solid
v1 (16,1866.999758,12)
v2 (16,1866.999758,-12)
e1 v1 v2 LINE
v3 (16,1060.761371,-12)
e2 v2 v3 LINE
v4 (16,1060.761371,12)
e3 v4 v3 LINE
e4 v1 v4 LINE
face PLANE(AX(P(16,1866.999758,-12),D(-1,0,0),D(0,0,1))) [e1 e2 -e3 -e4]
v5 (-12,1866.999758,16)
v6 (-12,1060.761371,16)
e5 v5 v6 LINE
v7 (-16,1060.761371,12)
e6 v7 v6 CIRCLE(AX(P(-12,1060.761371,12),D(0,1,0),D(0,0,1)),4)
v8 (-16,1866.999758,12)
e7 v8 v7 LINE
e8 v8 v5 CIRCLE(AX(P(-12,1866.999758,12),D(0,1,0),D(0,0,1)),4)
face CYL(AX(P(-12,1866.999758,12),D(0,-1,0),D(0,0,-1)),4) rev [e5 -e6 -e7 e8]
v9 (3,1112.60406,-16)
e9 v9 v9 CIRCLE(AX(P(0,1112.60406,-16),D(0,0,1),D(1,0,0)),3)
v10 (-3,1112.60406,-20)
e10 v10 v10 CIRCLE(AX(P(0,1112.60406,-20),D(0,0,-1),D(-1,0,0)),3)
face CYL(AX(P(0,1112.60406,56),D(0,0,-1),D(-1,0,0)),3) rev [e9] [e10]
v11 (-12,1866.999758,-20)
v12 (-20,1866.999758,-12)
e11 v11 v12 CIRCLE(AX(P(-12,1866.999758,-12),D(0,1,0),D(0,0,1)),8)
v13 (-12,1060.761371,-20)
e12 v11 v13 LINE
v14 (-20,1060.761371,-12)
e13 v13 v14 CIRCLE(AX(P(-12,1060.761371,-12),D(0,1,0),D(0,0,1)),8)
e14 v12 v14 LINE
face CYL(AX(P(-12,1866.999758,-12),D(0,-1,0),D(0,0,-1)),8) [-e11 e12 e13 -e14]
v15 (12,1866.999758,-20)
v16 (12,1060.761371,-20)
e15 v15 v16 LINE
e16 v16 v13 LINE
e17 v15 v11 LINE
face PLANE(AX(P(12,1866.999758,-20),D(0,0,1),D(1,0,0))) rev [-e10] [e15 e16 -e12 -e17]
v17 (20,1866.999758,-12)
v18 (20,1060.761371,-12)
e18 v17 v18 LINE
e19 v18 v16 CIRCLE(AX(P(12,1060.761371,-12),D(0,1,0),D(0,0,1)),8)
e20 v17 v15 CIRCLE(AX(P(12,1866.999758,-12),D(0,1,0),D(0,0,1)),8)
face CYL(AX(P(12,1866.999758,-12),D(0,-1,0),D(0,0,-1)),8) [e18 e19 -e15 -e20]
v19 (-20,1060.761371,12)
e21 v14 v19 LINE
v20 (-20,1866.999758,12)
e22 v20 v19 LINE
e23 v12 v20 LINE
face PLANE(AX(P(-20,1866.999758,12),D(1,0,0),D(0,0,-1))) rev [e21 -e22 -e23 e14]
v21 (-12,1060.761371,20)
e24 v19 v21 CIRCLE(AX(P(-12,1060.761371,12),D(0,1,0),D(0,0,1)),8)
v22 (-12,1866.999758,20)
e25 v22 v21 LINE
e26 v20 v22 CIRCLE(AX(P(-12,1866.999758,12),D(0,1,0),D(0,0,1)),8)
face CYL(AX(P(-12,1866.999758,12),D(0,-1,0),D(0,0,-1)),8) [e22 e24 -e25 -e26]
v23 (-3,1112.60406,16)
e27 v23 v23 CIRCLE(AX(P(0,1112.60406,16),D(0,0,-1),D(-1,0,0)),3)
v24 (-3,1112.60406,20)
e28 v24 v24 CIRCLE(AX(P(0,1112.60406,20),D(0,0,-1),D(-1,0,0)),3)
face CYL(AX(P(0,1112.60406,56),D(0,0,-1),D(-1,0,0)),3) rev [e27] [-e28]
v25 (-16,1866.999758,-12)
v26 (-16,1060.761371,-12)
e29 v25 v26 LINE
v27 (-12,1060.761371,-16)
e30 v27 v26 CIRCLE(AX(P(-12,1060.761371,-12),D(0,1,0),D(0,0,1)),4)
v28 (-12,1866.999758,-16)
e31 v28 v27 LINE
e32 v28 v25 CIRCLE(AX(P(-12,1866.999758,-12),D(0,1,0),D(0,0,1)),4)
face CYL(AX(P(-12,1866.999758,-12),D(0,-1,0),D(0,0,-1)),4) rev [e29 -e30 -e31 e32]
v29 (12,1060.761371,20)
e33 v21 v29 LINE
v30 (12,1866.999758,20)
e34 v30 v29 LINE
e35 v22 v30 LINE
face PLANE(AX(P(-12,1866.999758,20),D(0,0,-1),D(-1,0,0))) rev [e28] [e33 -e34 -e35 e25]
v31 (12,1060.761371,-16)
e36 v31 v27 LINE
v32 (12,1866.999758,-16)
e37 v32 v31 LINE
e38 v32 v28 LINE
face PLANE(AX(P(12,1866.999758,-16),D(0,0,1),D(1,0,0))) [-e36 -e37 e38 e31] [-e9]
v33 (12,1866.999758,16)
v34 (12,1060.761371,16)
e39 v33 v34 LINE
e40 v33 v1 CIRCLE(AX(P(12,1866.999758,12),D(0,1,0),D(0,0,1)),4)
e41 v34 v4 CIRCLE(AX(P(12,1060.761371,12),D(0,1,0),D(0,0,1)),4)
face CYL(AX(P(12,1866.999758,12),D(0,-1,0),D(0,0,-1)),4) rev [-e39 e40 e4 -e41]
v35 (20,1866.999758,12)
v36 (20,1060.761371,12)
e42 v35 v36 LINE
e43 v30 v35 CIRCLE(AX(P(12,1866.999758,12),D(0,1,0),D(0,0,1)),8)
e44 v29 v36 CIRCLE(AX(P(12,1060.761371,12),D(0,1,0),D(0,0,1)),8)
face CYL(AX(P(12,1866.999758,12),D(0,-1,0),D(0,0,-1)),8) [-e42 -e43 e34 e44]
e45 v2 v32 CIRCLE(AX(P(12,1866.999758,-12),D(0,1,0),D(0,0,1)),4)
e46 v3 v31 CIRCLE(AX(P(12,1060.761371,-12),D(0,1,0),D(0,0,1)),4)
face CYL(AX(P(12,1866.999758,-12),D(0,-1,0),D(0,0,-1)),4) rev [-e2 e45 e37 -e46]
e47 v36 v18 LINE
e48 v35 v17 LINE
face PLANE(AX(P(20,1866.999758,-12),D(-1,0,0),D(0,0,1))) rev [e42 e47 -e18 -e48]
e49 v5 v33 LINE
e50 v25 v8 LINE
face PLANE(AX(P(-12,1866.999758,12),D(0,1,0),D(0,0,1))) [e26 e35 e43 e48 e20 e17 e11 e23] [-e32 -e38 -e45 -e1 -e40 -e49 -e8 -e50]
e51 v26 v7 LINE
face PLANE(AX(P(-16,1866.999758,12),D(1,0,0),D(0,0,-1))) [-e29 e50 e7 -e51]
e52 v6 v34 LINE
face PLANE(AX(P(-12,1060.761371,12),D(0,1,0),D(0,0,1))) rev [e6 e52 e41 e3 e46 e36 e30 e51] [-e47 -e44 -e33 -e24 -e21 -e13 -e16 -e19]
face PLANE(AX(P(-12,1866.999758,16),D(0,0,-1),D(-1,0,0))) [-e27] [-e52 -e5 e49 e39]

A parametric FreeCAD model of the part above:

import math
import FreeCAD as App
import Part
import Sketcher
Q = App.Units.Quantity

doc = App.newDocument("Part")
params = doc.addObject("Spreadsheet::Sheet", "Params")
for row, (alias, value) in enumerate([
    ("sketch1_radius", "8 mm"),
    ("sketch1_radius2", "4 mm"),
    ("sketch1_width", "24 mm"),
    ("pad1_length", "806.238387 mm"),
    ("sketch2_diameter", "6 mm"),
    ("pocket1_length", "76 mm"),
], start=1):
    params.set(f"A{row}", alias)
    params.set(f"B{row}", "=" + value)
    params.setAlias(f"B{row}", alias)

body = doc.addObject("PartDesign::Body", "Body")

# Sketch on XZ plane
sketch1 = body.newObject("Sketcher::SketchObject", "Sketch")
sketch1.AttachmentSupport = (doc.getObject("XZ_Plane"), [""])
sketch1.MapMode = "FlatFace"
sketch1.AttachmentOffset = App.Placement(App.Vector(0, 0, -1060.761371), App.Rotation())
sketch1.addGeometry(Part.LineSegment(App.Vector(12, -20, 0), App.Vector(-12, -20, 0)), False)
sketch1.addGeometry(Part.ArcOfCircle(Part.Circle(App.Vector(-12, -12, 0), App.Vector(0, 0, 1), 8), math.radians(-180), math.radians(-90)), False)
sketch1.addGeometry(Part.LineSegment(App.Vector(-20, -12, 0), App.Vector(-20, 12, 0)), False)
sketch1.addGeometry(Part.ArcOfCircle(Part.Circle(App.Vector(-12, 12, 0), App.Vector(0, 0, 1), 8), math.radians(90), math.radians(180)), False)
sketch1.addGeometry(Part.LineSegment(App.Vector(-12, 20, 0), App.Vector(12, 20, 0)), False)
sketch1.addGeometry(Part.ArcOfCircle(Part.Circle(App.Vector(12, 12, 0), App.Vector(0, 0, 1), 8), math.radians(0), math.radians(90)), False)
sketch1.addGeometry(Part.LineSegment(App.Vector(20, 12, 0), App.Vector(20, -12, 0)), False)
sketch1.addGeometry(Part.ArcOfCircle(Part.Circle(App.Vector(12, -12, 0), App.Vector(0, 0, 1), 8), math.radians(-90), math.radians(0)), False)
sketch1.addGeometry(Part.LineSegment(App.Vector(-12, -16, 0), App.Vector(12, -16, 0)), False)
sketch1.addGeometry(Part.ArcOfCircle(Part.Circle(App.Vector(12, -12, 0), App.Vector(0, 0, 1), 4), math.radians(-90), math.radians(0)), False)
sketch1.addGeometry(Part.LineSegment(App.Vector(16, -12, 0), App.Vector(16, 12, 0)), False)
sketch1.addGeometry(Part.ArcOfCircle(Part.Circle(App.Vector(12, 12, 0), App.Vector(0, 0, 1), 4), math.radians(0), math.radians(90)), False)
sketch1.addGeometry(Part.LineSegment(App.Vector(12, 16, 0), App.Vector(-12, 16, 0)), False)
sketch1.addGeometry(Part.ArcOfCircle(Part.Circle(App.Vector(-12, 12, 0), App.Vector(0, 0, 1), 4), math.radians(90), math.radians(180)), False)
sketch1.addGeometry(Part.LineSegment(App.Vector(-16, 12, 0), App.Vector(-16, -12, 0)), False)
sketch1.addGeometry(Part.ArcOfCircle(Part.Circle(App.Vector(-12, -12, 0), App.Vector(0, 0, 1), 4), math.radians(180), math.radians(270)), False)
sketch1.addConstraint(Sketcher.Constraint("Tangent", 0, 2, 1, 2))
sketch1.addConstraint(Sketcher.Constraint("Tangent", 1, 1, 2, 1))
sketch1.addConstraint(Sketcher.Constraint("Tangent", 2, 2, 3, 2))
sketch1.addConstraint(Sketcher.Constraint("Tangent", 3, 1, 4, 1))
sketch1.addConstraint(Sketcher.Constraint("Tangent", 4, 2, 5, 2))
sketch1.addConstraint(Sketcher.Constraint("Tangent", 5, 1, 6, 1))
sketch1.addConstraint(Sketcher.Constraint("Tangent", 6, 2, 7, 2))
sketch1.addConstraint(Sketcher.Constraint("Tangent", 7, 1, 0, 1))
sketch1.addConstraint(Sketcher.Constraint("Tangent", 8, 2, 9, 1))
sketch1.addConstraint(Sketcher.Constraint("Tangent", 9, 2, 10, 1))
sketch1.addConstraint(Sketcher.Constraint("Tangent", 10, 2, 11, 1))
sketch1.addConstraint(Sketcher.Constraint("Tangent", 11, 2, 12, 1))
sketch1.addConstraint(Sketcher.Constraint("Tangent", 12, 2, 13, 1))
sketch1.addConstraint(Sketcher.Constraint("Tangent", 13, 2, 14, 1))
sketch1.addConstraint(Sketcher.Constraint("Tangent", 14, 2, 15, 1))
sketch1.addConstraint(Sketcher.Constraint("Tangent", 15, 2, 8, 1))
sketch1.addConstraint(Sketcher.Constraint("Horizontal", 0))
sketch1.addConstraint(Sketcher.Constraint("Vertical", 2))
sketch1.addConstraint(Sketcher.Constraint("Horizontal", 4))
sketch1.addConstraint(Sketcher.Constraint("Vertical", 6))
sketch1.addConstraint(Sketcher.Constraint("Horizontal", 8))
sketch1.addConstraint(Sketcher.Constraint("Vertical", 10))
sketch1.addConstraint(Sketcher.Constraint("Horizontal", 12))
sketch1.addConstraint(Sketcher.Constraint("Vertical", 14))
sketch1.addConstraint(Sketcher.Constraint("Coincident", 9, 3, 7, 3))
sketch1.addConstraint(Sketcher.Constraint("Coincident", 11, 3, 5, 3))
sketch1.addConstraint(Sketcher.Constraint("Coincident", 13, 3, 3, 3))
sketch1.addConstraint(Sketcher.Constraint("Equal", 1, 3))
sketch1.addConstraint(Sketcher.Constraint("Equal", 3, 5))
sketch1.addConstraint(Sketcher.Constraint("Equal", 5, 7))
sketch1.addConstraint(Sketcher.Constraint("Equal", 13, 15))
sketch1.addConstraint(Sketcher.Constraint("Symmetric", 1, 3, 5, 3, -1, 1))
sketch1.addConstraint(Sketcher.Constraint("Equal", 12, 2))
sketch1.addConstraint(Sketcher.Constraint("Radius", 1, Q("8 mm")))
sketch1.addConstraint(Sketcher.Constraint("Radius", 9, Q("4 mm")))
sketch1.addConstraint(Sketcher.Constraint("DistanceX", 0, 2, 0, 1, Q("24 mm")))
sketch1.setExpression("Constraints[33]", "Params.sketch1_radius")
sketch1.setExpression("Constraints[34]", "Params.sketch1_radius2")
sketch1.setExpression("Constraints[35]", "Params.sketch1_width")
pad1 = body.newObject("PartDesign::Pad", "Pad")
pad1.Profile = sketch1
pad1.setExpression("Length", "Params.pad1_length")
pad1.Reversed = True

# Sketch on XY plane
sketch2 = body.newObject("Sketcher::SketchObject", "Sketch001")
sketch2.AttachmentSupport = (doc.getObject("XY_Plane"), [""])
sketch2.MapMode = "FlatFace"
sketch2.AttachmentOffset = App.Placement(App.Vector(0, 0, -20), App.Rotation())
sketch2.addGeometry(Part.Circle(App.Vector(0, 1112.60406, 0), App.Vector(0, 0, 1), 3), False)
sketch2.addConstraint(Sketcher.Constraint("PointOnObject", 0, 3, -2))
sketch2.addConstraint(Sketcher.Constraint("Diameter", 0, Q("6 mm")))
sketch2.addConstraint(Sketcher.Constraint("DistanceY", -1, 1, 0, 3, Q("1112.60406 mm")))
sketch2.setExpression("Constraints[1]", "Params.sketch2_diameter")
pocket1 = body.newObject("PartDesign::Pocket", "Pocket")
pocket1.Profile = sketch2
pocket1.setExpression("Length", "Params.pocket1_length")
pocket1.Reversed = True

doc.recompute()
